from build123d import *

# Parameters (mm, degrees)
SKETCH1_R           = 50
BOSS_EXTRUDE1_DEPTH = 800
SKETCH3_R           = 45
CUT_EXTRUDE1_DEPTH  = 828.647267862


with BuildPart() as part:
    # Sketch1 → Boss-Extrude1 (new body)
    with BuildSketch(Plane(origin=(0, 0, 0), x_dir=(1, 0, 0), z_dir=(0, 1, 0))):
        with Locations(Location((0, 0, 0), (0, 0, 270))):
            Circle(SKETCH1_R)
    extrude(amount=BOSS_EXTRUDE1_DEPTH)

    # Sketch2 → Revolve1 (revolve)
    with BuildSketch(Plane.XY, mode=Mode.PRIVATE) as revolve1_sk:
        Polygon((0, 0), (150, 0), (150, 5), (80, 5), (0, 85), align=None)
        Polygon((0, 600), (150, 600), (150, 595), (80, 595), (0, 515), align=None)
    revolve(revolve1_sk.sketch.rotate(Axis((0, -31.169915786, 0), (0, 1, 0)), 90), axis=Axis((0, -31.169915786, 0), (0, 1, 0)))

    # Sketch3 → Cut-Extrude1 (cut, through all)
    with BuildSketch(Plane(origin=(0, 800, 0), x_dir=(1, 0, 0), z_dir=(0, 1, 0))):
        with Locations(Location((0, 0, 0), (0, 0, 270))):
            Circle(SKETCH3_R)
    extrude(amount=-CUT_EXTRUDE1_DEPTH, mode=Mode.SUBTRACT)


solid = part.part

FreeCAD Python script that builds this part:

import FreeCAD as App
import Part
import Sketcher
from FreeCAD import Vector
Q = App.Units.Quantity

doc = App.newDocument("Part")
body = doc.addObject("PartDesign::Body", "Body")

sketch1 = body.newObject("Sketcher::SketchObject", "Sketch")
sketch1.AttachmentSupport = (doc.getObject("XZ_Plane"), [""])
sketch1.MapMode = "FlatFace"
sketch1.addGeometry(Part.Circle(Vector(0, 0, 0), Vector(0, 0, 1), 50), False)
sketch1.addConstraint(Sketcher.Constraint("Coincident", 0, 3, -1, 1))
sketch1.addConstraint(Sketcher.Constraint("Diameter", 0, Q("100 mm")))
pad1 = body.newObject("PartDesign::Pad", "Pad")
pad1.Profile = sketch1
pad1.Length = 800
pad1.Reversed = True

sketch2 = body.newObject("Sketcher::SketchObject", "Sketch001")
sketch2.AttachmentSupport = (doc.getObject("XY_Plane"), [""])
sketch2.MapMode = "FlatFace"
sketch2.addGeometry(Part.LineSegment(Vector(0, 0, 0), Vector(150, 0, 0)), False)
sketch2.addGeometry(Part.LineSegment(Vector(150, 0, 0), Vector(150, 5, 0)), False)
sketch2.addGeometry(Part.LineSegment(Vector(150, 5, 0), Vector(80, 5, 0)), False)
sketch2.addGeometry(Part.LineSegment(Vector(80, 5, 0), Vector(0, 85, 0)), False)
sketch2.addGeometry(Part.LineSegment(Vector(0, 85, 0), Vector(0, 0, 0)), False)
sketch2.addGeometry(Part.LineSegment(Vector(150, 600, 0), Vector(0, 600, 0)), False)
sketch2.addGeometry(Part.LineSegment(Vector(0, 600, 0), Vector(0, 515, 0)), False)
sketch2.addGeometry(Part.LineSegment(Vector(0, 515, 0), Vector(80, 595, 0)), False)
sketch2.addGeometry(Part.LineSegment(Vector(80, 595, 0), Vector(150, 595, 0)), False)
sketch2.addGeometry(Part.LineSegment(Vector(150, 595, 0), Vector(150, 600, 0)), False)
sketch2.addConstraint(Sketcher.Constraint("Coincident", 0, 2, 1, 1))
sketch2.addConstraint(Sketcher.Constraint("Coincident", 1, 2, 2, 1))
sketch2.addConstraint(Sketcher.Constraint("Coincident", 2, 2, 3, 1))
sketch2.addConstraint(Sketcher.Constraint("Coincident", 3, 2, 4, 1))
sketch2.addConstraint(Sketcher.Constraint("Coincident", 4, 2, 0, 1))
sketch2.addConstraint(Sketcher.Constraint("Coincident", 5, 2, 6, 1))
sketch2.addConstraint(Sketcher.Constraint("Coincident", 6, 2, 7, 1))
sketch2.addConstraint(Sketcher.Constraint("Coincident", 7, 2, 8, 1))
sketch2.addConstraint(Sketcher.Constraint("Coincident", 8, 2, 9, 1))
sketch2.addConstraint(Sketcher.Constraint("Coincident", 9, 2, 5, 1))
sketch2.addConstraint(Sketcher.Constraint("Horizontal", 0))
sketch2.addConstraint(Sketcher.Constraint("Vertical", 1))
sketch2.addConstraint(Sketcher.Constraint("Horizontal", 2))
sketch2.addConstraint(Sketcher.Constraint("Vertical", 4))
sketch2.addConstraint(Sketcher.Constraint("Horizontal", 5))
sketch2.addConstraint(Sketcher.Constraint("Vertical", 6))
sketch2.addConstraint(Sketcher.Constraint("Horizontal", 8))
sketch2.addConstraint(Sketcher.Constraint("Vertical", 9))
sketch2.addConstraint(Sketcher.Constraint("Coincident", 4, 2, -1, 1))
sketch2.addConstraint(Sketcher.Constraint("PointOnObject", 5, 2, -2))
sketch2.addConstraint(Sketcher.Constraint("Perpendicular", 3, 7))
sketch2.addConstraint(Sketcher.Constraint("Vertical", 2, 2, 7, 2))
sketch2.addConstraint(Sketcher.Constraint("Vertical", 1, 2, 8, 2))
sketch2.addConstraint(Sketcher.Constraint("Equal", 4, 6))
sketch2.addConstraint(Sketcher.Constraint("Equal", 1, 9))
sketch2.addConstraint(Sketcher.Constraint("DistanceX", 0, 1, 0, 2, Q("150 mm")))
sketch2.addConstraint(Sketcher.Constraint("DistanceX", 2, 2, 2, 1, Q("70 mm")))
sketch2.addConstraint(Sketcher.Constraint("DistanceY", 1, 1, 1, 2, Q("5 mm")))
sketch2.addConstraint(Sketcher.Constraint("DistanceY", -1, 1, 5, 2, Q("600 mm")))
revolution = body.newObject("PartDesign::Revolution", "Revolution")
revolution.Profile = sketch2
revolution.ReferenceAxis = (sketch2, ["V_Axis"])
revolution.Angle = 360

sketch3 = body.newObject("Sketcher::SketchObject", "Sketch002")
sketch3.AttachmentSupport = (doc.getObject("XZ_Plane"), [""])
sketch3.MapMode = "FlatFace"
sketch3.AttachmentOffset = App.Placement(Vector(0, 0, -800), App.Rotation())
sketch3.addGeometry(Part.Circle(Vector(0, 0, 0), Vector(0, 0, 1), 45), False)
sketch3.addConstraint(Sketcher.Constraint("Coincident", 0, 3, -1, 1))
sketch3.addConstraint(Sketcher.Constraint("Diameter", 0, Q("90 mm")))
pocket1 = body.newObject("PartDesign::Pocket", "Pocket")
pocket1.Profile = sketch3
pocket1.Type = "ThroughAll"
pocket1.Reversed = True

doc.recompute()
